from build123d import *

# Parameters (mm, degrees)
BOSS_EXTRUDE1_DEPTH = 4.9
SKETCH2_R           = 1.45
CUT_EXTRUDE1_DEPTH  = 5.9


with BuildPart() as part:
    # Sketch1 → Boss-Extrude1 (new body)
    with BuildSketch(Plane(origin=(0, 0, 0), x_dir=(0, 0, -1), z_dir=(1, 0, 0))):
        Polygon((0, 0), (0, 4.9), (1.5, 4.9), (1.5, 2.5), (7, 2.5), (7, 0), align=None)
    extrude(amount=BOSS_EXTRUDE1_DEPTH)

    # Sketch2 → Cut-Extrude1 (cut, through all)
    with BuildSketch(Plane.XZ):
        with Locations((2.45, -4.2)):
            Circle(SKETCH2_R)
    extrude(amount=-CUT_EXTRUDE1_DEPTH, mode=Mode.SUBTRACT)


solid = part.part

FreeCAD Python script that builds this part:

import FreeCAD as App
import Part
import Sketcher

doc = App.newDocument("Part")
params = doc.addObject("Spreadsheet::Sheet", "Params")
for row, (alias, value) in enumerate([
    ("sketch1_height", "7 mm"),
    ("sketch1_width", "4.9 mm"),
    ("sketch1_width2", "2.5 mm"),
    ("sketch1_height2", "5.5 mm"),
    ("pad1_length", "4.9 mm"),
    ("sketch2_diameter", "2.9 mm"),
], start=1):
    params.set(f"A{row}", alias)
    params.set(f"B{row}", "=" + value)
    params.setAlias(f"B{row}", alias)

body = doc.addObject("PartDesign::Body", "Body")

# Sketch on YZ plane
sketch1 = body.newObject("Sketcher::SketchObject", "Sketch")
sketch1.AttachmentSupport = (doc.getObject("YZ_Plane"), [""])
sketch1.MapMode = "FlatFace"
sketch1.addGeometry(Part.LineSegment(App.Vector(4.9, 0, 0), App.Vector(0, 0, 0)), False)
sketch1.addGeometry(Part.LineSegment(App.Vector(0, 0, 0), App.Vector(0, -7, 0)), False)
sketch1.addGeometry(Part.LineSegment(App.Vector(0, -7, 0), App.Vector(2.5, -7, 0)), False)
sketch1.addGeometry(Part.LineSegment(App.Vector(2.5, -7, 0), App.Vector(2.5, -1.5, 0)), False)
sketch1.addGeometry(Part.LineSegment(App.Vector(2.5, -1.5, 0), App.Vector(4.9, -1.5, 0)), False)
sketch1.addGeometry(Part.LineSegment(App.Vector(4.9, -1.5, 0), App.Vector(4.9, 0, 0)), False)
sketch1.addConstraint(Sketcher.Constraint("Coincident", 0, 2, 1, 1))
sketch1.addConstraint(Sketcher.Constraint("Coincident", 1, 2, 2, 1))
sketch1.addConstraint(Sketcher.Constraint("Coincident", 2, 2, 3, 1))
sketch1.addConstraint(Sketcher.Constraint("Coincident", 3, 2, 4, 1))
sketch1.addConstraint(Sketcher.Constraint("Coincident", 4, 2, 5, 1))
sketch1.addConstraint(Sketcher.Constraint("Coincident", 5, 2, 0, 1))
sketch1.addConstraint(Sketcher.Constraint("Horizontal", 0))
sketch1.addConstraint(Sketcher.Constraint("Vertical", 1))
sketch1.addConstraint(Sketcher.Constraint("Horizontal", 2))
sketch1.addConstraint(Sketcher.Constraint("Vertical", 3))
sketch1.addConstraint(Sketcher.Constraint("Horizontal", 4))
sketch1.addConstraint(Sketcher.Constraint("Vertical", 5))
sketch1.addConstraint(Sketcher.Constraint("Coincident", 0, 2, -1, 1))
sketch1.addConstraint(Sketcher.Constraint("DistanceY", 1, 2, 1, 1, 7.0))
sketch1.addConstraint(Sketcher.Constraint("DistanceX", 0, 2, 0, 1, 4.9))
sketch1.addConstraint(Sketcher.Constraint("DistanceX", 2, 1, 2, 2, 2.5))
sketch1.addConstraint(Sketcher.Constraint("DistanceY", 3, 1, 3, 2, 5.5))
sketch1.setExpression("Constraints[13]", "Params.sketch1_height")
sketch1.setExpression("Constraints[14]", "Params.sketch1_width")
sketch1.setExpression("Constraints[15]", "Params.sketch1_width2")
sketch1.setExpression("Constraints[16]", "Params.sketch1_height2")
pad1 = body.newObject("PartDesign::Pad", "Pad")
pad1.Profile = sketch1
pad1.setExpression("Length", "Params.pad1_length")

# Sketch on XZ plane
sketch2 = body.newObject("Sketcher::SketchObject", "Sketch001")
sketch2.AttachmentSupport = (doc.getObject("XZ_Plane"), [""])
sketch2.MapMode = "FlatFace"
sketch2.addGeometry(Part.Circle(App.Vector(2.5, -4.2, 0), App.Vector(0, 0, 1), 1.4), False)
sketch2.addConstraint(Sketcher.Constraint("Diameter", 0, 2.9))
sketch2.addConstraint(Sketcher.Constraint("DistanceY", 0, 3, -1, 1, 4.2))
sketch2.addConstraint(Sketcher.Constraint("DistanceX", -1, 1, 0, 3, 2.45))
sketch2.setExpression("Constraints[0]", "Params.sketch2_diameter")
pocket1 = body.newObject("PartDesign::Pocket", "Pocket")
pocket1.Profile = sketch2
pocket1.Type = "ThroughAll"

doc.recompute()
